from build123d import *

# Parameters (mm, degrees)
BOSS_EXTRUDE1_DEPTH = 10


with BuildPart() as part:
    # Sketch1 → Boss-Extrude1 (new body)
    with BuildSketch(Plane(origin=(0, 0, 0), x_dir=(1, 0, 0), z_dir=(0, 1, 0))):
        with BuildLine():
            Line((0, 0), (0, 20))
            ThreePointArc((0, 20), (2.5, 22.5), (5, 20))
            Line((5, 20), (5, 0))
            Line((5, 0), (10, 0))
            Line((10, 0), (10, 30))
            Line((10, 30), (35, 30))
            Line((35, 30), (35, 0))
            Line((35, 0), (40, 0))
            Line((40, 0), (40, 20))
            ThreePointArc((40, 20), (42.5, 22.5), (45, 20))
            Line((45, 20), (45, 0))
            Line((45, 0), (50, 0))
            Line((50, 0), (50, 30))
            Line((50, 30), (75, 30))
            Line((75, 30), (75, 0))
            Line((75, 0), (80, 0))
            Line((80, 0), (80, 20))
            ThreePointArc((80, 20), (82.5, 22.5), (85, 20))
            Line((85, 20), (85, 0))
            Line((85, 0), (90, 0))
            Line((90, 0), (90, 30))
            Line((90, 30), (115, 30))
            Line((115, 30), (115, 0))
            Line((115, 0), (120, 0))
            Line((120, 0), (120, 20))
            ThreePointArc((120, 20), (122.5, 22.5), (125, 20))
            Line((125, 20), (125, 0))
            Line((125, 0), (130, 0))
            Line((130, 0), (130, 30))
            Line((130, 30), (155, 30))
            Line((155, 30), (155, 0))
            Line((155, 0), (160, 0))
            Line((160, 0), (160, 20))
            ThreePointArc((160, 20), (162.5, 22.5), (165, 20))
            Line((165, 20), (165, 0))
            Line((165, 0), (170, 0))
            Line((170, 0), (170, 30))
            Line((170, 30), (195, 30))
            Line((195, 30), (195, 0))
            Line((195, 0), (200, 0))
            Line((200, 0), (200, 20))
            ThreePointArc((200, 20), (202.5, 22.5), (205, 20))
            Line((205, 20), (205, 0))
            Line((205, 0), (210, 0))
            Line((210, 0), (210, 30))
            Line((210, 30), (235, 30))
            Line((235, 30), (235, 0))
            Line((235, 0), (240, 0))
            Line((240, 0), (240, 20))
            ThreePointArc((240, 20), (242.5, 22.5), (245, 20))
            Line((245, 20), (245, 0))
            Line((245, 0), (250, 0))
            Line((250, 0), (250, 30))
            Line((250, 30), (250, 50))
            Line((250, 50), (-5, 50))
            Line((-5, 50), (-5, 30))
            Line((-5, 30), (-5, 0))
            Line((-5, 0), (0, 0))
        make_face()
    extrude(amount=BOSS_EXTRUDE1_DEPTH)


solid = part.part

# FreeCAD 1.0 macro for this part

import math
import FreeCAD as App
import Part
import Sketcher
from FreeCAD import Vector
Q = App.Units.Quantity

doc = App.newDocument("Part")
body = doc.addObject("PartDesign::Body", "Body")

sketch1 = body.newObject("Sketcher::SketchObject", "Sketch")
sketch1.AttachmentSupport = (doc.getObject("XZ_Plane"), [""])
sketch1.MapMode = "FlatFace"
sketch1.addGeometry(Part.LineSegment(Vector(0, 0, 0), Vector(0, -20, 0)), False)
sketch1.addGeometry(Part.ArcOfCircle(Part.Circle(Vector(2.5, -20, 0), Vector(0, 0, 1), 2.5), math.radians(180), math.radians(360)), False)
sketch1.addGeometry(Part.LineSegment(Vector(5, -20, 0), Vector(5, 0, 0)), False)
sketch1.addGeometry(Part.LineSegment(Vector(5, 0, 0), Vector(10, 0, 0)), False)
sketch1.addGeometry(Part.LineSegment(Vector(10, 0, 0), Vector(10, -30, 0)), False)
sketch1.addGeometry(Part.LineSegment(Vector(10, -30, 0), Vector(35, -30, 0)), False)
sketch1.addGeometry(Part.LineSegment(Vector(35, -30, 0), Vector(35, 0, 0)), False)
sketch1.addGeometry(Part.LineSegment(Vector(35, 0, 0), Vector(40, 0, 0)), False)
sketch1.addGeometry(Part.LineSegment(Vector(40, 0, 0), Vector(40, -20, 0)), False)
sketch1.addGeometry(Part.ArcOfCircle(Part.Circle(Vector(42.5, -20, 0), Vector(0, 0, 1), 2.5), math.radians(180), math.radians(360)), False)
sketch1.addGeometry(Part.LineSegment(Vector(45, -20, 0), Vector(45, 0, 0)), False)
sketch1.addGeometry(Part.LineSegment(Vector(45, 0, 0), Vector(50, 0, 0)), False)
sketch1.addGeometry(Part.LineSegment(Vector(50, 0, 0), Vector(50, -30, 0)), False)
sketch1.addGeometry(Part.LineSegment(Vector(50, -30, 0), Vector(75, -30, 0)), False)
sketch1.addGeometry(Part.LineSegment(Vector(75, -30, 0), Vector(75, 0, 0)), False)
sketch1.addGeometry(Part.LineSegment(Vector(75, 0, 0), Vector(80, 0, 0)), False)
sketch1.addGeometry(Part.LineSegment(Vector(80, 0, 0), Vector(80, -20, 0)), False)
sketch1.addGeometry(Part.ArcOfCircle(Part.Circle(Vector(82.5, -20, 0), Vector(0, 0, 1), 2.5), math.radians(180), math.radians(360)), False)
sketch1.addGeometry(Part.LineSegment(Vector(85, -20, 0), Vector(85, 0, 0)), False)
sketch1.addGeometry(Part.LineSegment(Vector(85, 0, 0), Vector(90, 0, 0)), False)
sketch1.addGeometry(Part.LineSegment(Vector(90, 0, 0), Vector(90, -30, 0)), False)
sketch1.addGeometry(Part.LineSegment(Vector(90, -30, 0), Vector(115, -30, 0)), False)
sketch1.addGeometry(Part.LineSegment(Vector(115, -30, 0), Vector(115, 0, 0)), False)
sketch1.addGeometry(Part.LineSegment(Vector(115, 0, 0), Vector(120, 0, 0)), False)
sketch1.addGeometry(Part.LineSegment(Vector(120, 0, 0), Vector(120, -20, 0)), False)
sketch1.addGeometry(Part.ArcOfCircle(Part.Circle(Vector(122.5, -20, 0), Vector(0, 0, 1), 2.5), math.radians(180), math.radians(360)), False)
sketch1.addGeometry(Part.LineSegment(Vector(125, -20, 0), Vector(125, 0, 0)), False)
sketch1.addGeometry(Part.LineSegment(Vector(125, 0, 0), Vector(130, 0, 0)), False)
sketch1.addGeometry(Part.LineSegment(Vector(130, 0, 0), Vector(130, -30, 0)), False)
sketch1.addGeometry(Part.LineSegment(Vector(130, -30, 0), Vector(155, -30, 0)), False)
sketch1.addGeometry(Part.LineSegment(Vector(155, -30, 0), Vector(155, 0, 0)), False)
sketch1.addGeometry(Part.LineSegment(Vector(155, 0, 0), Vector(160, 0, 0)), False)
sketch1.addGeometry(Part.LineSegment(Vector(160, 0, 0), Vector(160, -20, 0)), False)
sketch1.addGeometry(Part.ArcOfCircle(Part.Circle(Vector(162.5, -20, 0), Vector(0, 0, 1), 2.5), math.radians(180), math.radians(360)), False)
sketch1.addGeometry(Part.LineSegment(Vector(165, -20, 0), Vector(165, 0, 0)), False)
sketch1.addGeometry(Part.LineSegment(Vector(165, 0, 0), Vector(170, 0, 0)), False)
sketch1.addGeometry(Part.LineSegment(Vector(170, 0, 0), Vector(170, -30, 0)), False)
sketch1.addGeometry(Part.LineSegment(Vector(170, -30, 0), Vector(195, -30, 0)), False)
sketch1.addGeometry(Part.LineSegment(Vector(195, -30, 0), Vector(195, 0, 0)), False)
sketch1.addGeometry(Part.LineSegment(Vector(195, 0, 0), Vector(200, 0, 0)), False)
sketch1.addGeometry(Part.LineSegment(Vector(200, 0, 0), Vector(200, -20, 0)), False)
sketch1.addGeometry(Part.ArcOfCircle(Part.Circle(Vector(202.5, -20, 0), Vector(0, 0, 1), 2.5), math.radians(180), math.radians(360)), False)
sketch1.addGeometry(Part.LineSegment(Vector(205, -20, 0), Vector(205, 0, 0)), False)
sketch1.addGeometry(Part.LineSegment(Vector(205, 0, 0), Vector(210, 0, 0)), False)
sketch1.addGeometry(Part.LineSegment(Vector(210, 0, 0), Vector(210, -30, 0)), False)
sketch1.addGeometry(Part.LineSegment(Vector(210, -30, 0), Vector(235, -30, 0)), False)
sketch1.addGeometry(Part.LineSegment(Vector(235, -30, 0), Vector(235, 0, 0)), False)
sketch1.addGeometry(Part.LineSegment(Vector(235, 0, 0), Vector(240, 0, 0)), False)
sketch1.addGeometry(Part.LineSegment(Vector(240, 0, 0), Vector(240, -20, 0)), False)
sketch1.addGeometry(Part.ArcOfCircle(Part.Circle(Vector(242.5, -20, 0), Vector(0, 0, 1), 2.5), math.radians(180), math.radians(360)), False)
sketch1.addGeometry(Part.LineSegment(Vector(245, -20, 0), Vector(245, 0, 0)), False)
sketch1.addGeometry(Part.LineSegment(Vector(245, 0, 0), Vector(250, 0, 0)), False)
sketch1.addGeometry(Part.LineSegment(Vector(250, 0, 0), Vector(250, -50, 0)), False)
sketch1.addGeometry(Part.LineSegment(Vector(250, -50, 0), Vector(-5, -50, 0)), False)
sketch1.addGeometry(Part.LineSegment(Vector(-5, -50, 0), Vector(-5, 0, 0)), False)
sketch1.addGeometry(Part.LineSegment(Vector(-5, 0, 0), Vector(0, 0, 0)), False)
sketch1.addConstraint(Sketcher.Constraint("Tangent", 0, 2, 1, 1))
sketch1.addConstraint(Sketcher.Constraint("Tangent", 1, 2, 2, 1))
sketch1.addConstraint(Sketcher.Constraint("Coincident", 2, 2, 3, 1))
sketch1.addConstraint(Sketcher.Constraint("Coincident", 3, 2, 4, 1))
sketch1.addConstraint(Sketcher.Constraint("Coincident", 4, 2, 5, 1))
sketch1.addConstraint(Sketcher.Constraint("Coincident", 5, 2, 6, 1))
sketch1.addConstraint(Sketcher.Constraint("Coincident", 6, 2, 7, 1))
sketch1.addConstraint(Sketcher.Constraint("Coincident", 7, 2, 8, 1))
sketch1.addConstraint(Sketcher.Constraint("Tangent", 8, 2, 9, 1))
sketch1.addConstraint(Sketcher.Constraint("Tangent", 9, 2, 10, 1))
sketch1.addConstraint(Sketcher.Constraint("Coincident", 10, 2, 11, 1))
sketch1.addConstraint(Sketcher.Constraint("Coincident", 11, 2, 12, 1))
sketch1.addConstraint(Sketcher.Constraint("Coincident", 12, 2, 13, 1))
sketch1.addConstraint(Sketcher.Constraint("Coincident", 13, 2, 14, 1))
sketch1.addConstraint(Sketcher.Constraint("Coincident", 14, 2, 15, 1))
sketch1.addConstraint(Sketcher.Constraint("Coincident", 15, 2, 16, 1))
sketch1.addConstraint(Sketcher.Constraint("Tangent", 16, 2, 17, 1))
sketch1.addConstraint(Sketcher.Constraint("Tangent", 17, 2, 18, 1))
sketch1.addConstraint(Sketcher.Constraint("Coincident", 18, 2, 19, 1))
sketch1.addConstraint(Sketcher.Constraint("Coincident", 19, 2, 20, 1))
sketch1.addConstraint(Sketcher.Constraint("Coincident", 20, 2, 21, 1))
sketch1.addConstraint(Sketcher.Constraint("Coincident", 21, 2, 22, 1))
sketch1.addConstraint(Sketcher.Constraint("Coincident", 22, 2, 23, 1))
sketch1.addConstraint(Sketcher.Constraint("Coincident", 23, 2, 24, 1))
sketch1.addConstraint(Sketcher.Constraint("Tangent", 24, 2, 25, 1))
sketch1.addConstraint(Sketcher.Constraint("Tangent", 25, 2, 26, 1))
sketch1.addConstraint(Sketcher.Constraint("Coincident", 26, 2, 27, 1))
sketch1.addConstraint(Sketcher.Constraint("Coincident", 27, 2, 28, 1))
sketch1.addConstraint(Sketcher.Constraint("Coincident", 28, 2, 29, 1))
sketch1.addConstraint(Sketcher.Constraint("Coincident", 29, 2, 30, 1))
sketch1.addConstraint(Sketcher.Constraint("Coincident", 30, 2, 31, 1))
sketch1.addConstraint(Sketcher.Constraint("Coincident", 31, 2, 32, 1))
sketch1.addConstraint(Sketcher.Constraint("Tangent", 32, 2, 33, 1))
sketch1.addConstraint(Sketcher.Constraint("Tangent", 33, 2, 34, 1))
sketch1.addConstraint(Sketcher.Constraint("Coincident", 34, 2, 35, 1))
sketch1.addConstraint(Sketcher.Constraint("Coincident", 35, 2, 36, 1))
sketch1.addConstraint(Sketcher.Constraint("Coincident", 36, 2, 37, 1))
sketch1.addConstraint(Sketcher.Constraint("Coincident", 37, 2, 38, 1))
sketch1.addConstraint(Sketcher.Constraint("Coincident", 38, 2, 39, 1))
sketch1.addConstraint(Sketcher.Constraint("Coincident", 39, 2, 40, 1))
sketch1.addConstraint(Sketcher.Constraint("Tangent", 40, 2, 41, 1))
sketch1.addConstraint(Sketcher.Constraint("Tangent", 41, 2, 42, 1))
sketch1.addConstraint(Sketcher.Constraint("Coincident", 42, 2, 43, 1))
sketch1.addConstraint(Sketcher.Constraint("Coincident", 43, 2, 44, 1))
sketch1.addConstraint(Sketcher.Constraint("Coincident", 44, 2, 45, 1))
sketch1.addConstraint(Sketcher.Constraint("Coincident", 45, 2, 46, 1))
sketch1.addConstraint(Sketcher.Constraint("Coincident", 46, 2, 47, 1))
sketch1.addConstraint(Sketcher.Constraint("Coincident", 47, 2, 48, 1))
sketch1.addConstraint(Sketcher.Constraint("Tangent", 48, 2, 49, 1))
sketch1.addConstraint(Sketcher.Constraint("Tangent", 49, 2, 50, 1))
sketch1.addConstraint(Sketcher.Constraint("Coincident", 50, 2, 51, 1))
sketch1.addConstraint(Sketcher.Constraint("Coincident", 51, 2, 52, 1))
sketch1.addConstraint(Sketcher.Constraint("Coincident", 52, 2, 53, 1))
sketch1.addConstraint(Sketcher.Constraint("Coincident", 53, 2, 54, 1))
sketch1.addConstraint(Sketcher.Constraint("Coincident", 54, 2, 55, 1))
sketch1.addConstraint(Sketcher.Constraint("Coincident", 55, 2, 0, 1))
sketch1.addConstraint(Sketcher.Constraint("Vertical", 0))
sketch1.addConstraint(Sketcher.Constraint("Vertical", 2))
sketch1.addConstraint(Sketcher.Constraint("Horizontal", 3))
sketch1.addConstraint(Sketcher.Constraint("Vertical", 4))
sketch1.addConstraint(Sketcher.Constraint("Horizontal", 5))
sketch1.addConstraint(Sketcher.Constraint("Vertical", 6))
sketch1.addConstraint(Sketcher.Constraint("Horizontal", 7))
sketch1.addConstraint(Sketcher.Constraint("Vertical", 8))
sketch1.addConstraint(Sketcher.Constraint("Vertical", 10))
sketch1.addConstraint(Sketcher.Constraint("Horizontal", 11))
sketch1.addConstraint(Sketcher.Constraint("Vertical", 12))
sketch1.addConstraint(Sketcher.Constraint("Horizontal", 13))
sketch1.addConstraint(Sketcher.Constraint("Vertical", 14))
sketch1.addConstraint(Sketcher.Constraint("Horizontal", 15))
sketch1.addConstraint(Sketcher.Constraint("Vertical", 16))
sketch1.addConstraint(Sketcher.Constraint("Vertical", 18))
sketch1.addConstraint(Sketcher.Constraint("Horizontal", 19))
sketch1.addConstraint(Sketcher.Constraint("Vertical", 20))
sketch1.addConstraint(Sketcher.Constraint("Horizontal", 21))
sketch1.addConstraint(Sketcher.Constraint("Vertical", 22))
sketch1.addConstraint(Sketcher.Constraint("Horizontal", 23))
sketch1.addConstraint(Sketcher.Constraint("Vertical", 24))
sketch1.addConstraint(Sketcher.Constraint("Vertical", 26))
sketch1.addConstraint(Sketcher.Constraint("Horizontal", 27))
sketch1.addConstraint(Sketcher.Constraint("Vertical", 28))
sketch1.addConstraint(Sketcher.Constraint("Horizontal", 29))
sketch1.addConstraint(Sketcher.Constraint("Vertical", 30))
sketch1.addConstraint(Sketcher.Constraint("Horizontal", 31))
sketch1.addConstraint(Sketcher.Constraint("Vertical", 32))
sketch1.addConstraint(Sketcher.Constraint("Vertical", 34))
sketch1.addConstraint(Sketcher.Constraint("Horizontal", 35))
sketch1.addConstraint(Sketcher.Constraint("Vertical", 36))
sketch1.addConstraint(Sketcher.Constraint("Horizontal", 37))
sketch1.addConstraint(Sketcher.Constraint("Vertical", 38))
sketch1.addConstraint(Sketcher.Constraint("Horizontal", 39))
sketch1.addConstraint(Sketcher.Constraint("Vertical", 40))
sketch1.addConstraint(Sketcher.Constraint("Vertical", 42))
sketch1.addConstraint(Sketcher.Constraint("Horizontal", 43))
sketch1.addConstraint(Sketcher.Constraint("Vertical", 44))
sketch1.addConstraint(Sketcher.Constraint("Horizontal", 45))
sketch1.addConstraint(Sketcher.Constraint("Vertical", 46))
sketch1.addConstraint(Sketcher.Constraint("Horizontal", 47))
sketch1.addConstraint(Sketcher.Constraint("Vertical", 48))
sketch1.addConstraint(Sketcher.Constraint("Vertical", 50))
sketch1.addConstraint(Sketcher.Constraint("Horizontal", 51))
sketch1.addConstraint(Sketcher.Constraint("Vertical", 52))
sketch1.addConstraint(Sketcher.Constraint("Horizontal", 53))
sketch1.addConstraint(Sketcher.Constraint("Vertical", 54))
sketch1.addConstraint(Sketcher.Constraint("Horizontal", 55))
sketch1.addConstraint(Sketcher.Constraint("Coincident", 55, 2, -1, 1))
sketch1.addConstraint(Sketcher.Constraint("Equal", 1, 9))
sketch1.addConstraint(Sketcher.Constraint("Equal", 9, 17))
sketch1.addConstraint(Sketcher.Constraint("Equal", 17, 25))
sketch1.addConstraint(Sketcher.Constraint("Equal", 25, 33))
sketch1.addConstraint(Sketcher.Constraint("Equal", 33, 41))
sketch1.addConstraint(Sketcher.Constraint("Equal", 41, 49))
sketch1.addConstraint(Sketcher.Constraint("Symmetric", 2, 2, 54, 2, -1, 1))
sketch1.addConstraint(Sketcher.Constraint("PointOnObject", 6, 2, -1))
sketch1.addConstraint(Sketcher.Constraint("PointOnObject", 10, 2, -1))
sketch1.addConstraint(Sketcher.Constraint("PointOnObject", 14, 2, -1))
sketch1.addConstraint(Sketcher.Constraint("PointOnObject", 18, 2, -1))
sketch1.addConstraint(Sketcher.Constraint("PointOnObject", 22, 2, -1))
sketch1.addConstraint(Sketcher.Constraint("PointOnObject", 26, 2, -1))
sketch1.addConstraint(Sketcher.Constraint("PointOnObject", 30, 2, -1))
sketch1.addConstraint(Sketcher.Constraint("PointOnObject", 34, 2, -1))
sketch1.addConstraint(Sketcher.Constraint("PointOnObject", 38, 2, -1))
sketch1.addConstraint(Sketcher.Constraint("PointOnObject", 42, 2, -1))
sketch1.addConstraint(Sketcher.Constraint("PointOnObject", 46, 2, -1))
sketch1.addConstraint(Sketcher.Constraint("PointOnObject", 50, 2, -1))
sketch1.addConstraint(Sketcher.Constraint("Horizontal", 1, 3, 9, 3))
sketch1.addConstraint(Sketcher.Constraint("Horizontal", 9, 3, 17, 3))
sketch1.addConstraint(Sketcher.Constraint("Horizontal", 17, 3, 25, 3))
sketch1.addConstraint(Sketcher.Constraint("Horizontal", 25, 3, 33, 3))
sketch1.addConstraint(Sketcher.Constraint("Horizontal", 33, 3, 41, 3))
sketch1.addConstraint(Sketcher.Constraint("Horizontal", 41, 3, 49, 3))
sketch1.addConstraint(Sketcher.Constraint("Horizontal", 5, 2, 12, 2))
sketch1.addConstraint(Sketcher.Constraint("Horizontal", 13, 2, 20, 2))
sketch1.addConstraint(Sketcher.Constraint("Horizontal", 21, 2, 28, 2))
sketch1.addConstraint(Sketcher.Constraint("Horizontal", 29, 2, 36, 2))
sketch1.addConstraint(Sketcher.Constraint("Horizontal", 37, 2, 44, 2))
sketch1.addConstraint(Sketcher.Constraint("Equal", 3, 7))
sketch1.addConstraint(Sketcher.Constraint("Equal", 7, 11))
sketch1.addConstraint(Sketcher.Constraint("Equal", 5, 13))
sketch1.addConstraint(Sketcher.Constraint("Equal", 11, 15))
sketch1.addConstraint(Sketcher.Constraint("Equal", 15, 19))
sketch1.addConstraint(Sketcher.Constraint("Equal", 13, 21))
sketch1.addConstraint(Sketcher.Constraint("Equal", 19, 23))
sketch1.addConstraint(Sketcher.Constraint("Equal", 23, 27))
sketch1.addConstraint(Sketcher.Constraint("Equal", 21, 29))
sketch1.addConstraint(Sketcher.Constraint("Equal", 27, 31))
sketch1.addConstraint(Sketcher.Constraint("Equal", 31, 35))
sketch1.addConstraint(Sketcher.Constraint("Equal", 29, 37))
sketch1.addConstraint(Sketcher.Constraint("Equal", 35, 39))
sketch1.addConstraint(Sketcher.Constraint("Equal", 39, 43))
sketch1.addConstraint(Sketcher.Constraint("Equal", 37, 45))
sketch1.addConstraint(Sketcher.Constraint("Equal", 43, 47))
sketch1.addConstraint(Sketcher.Constraint("Equal", 47, 51))
sketch1.addConstraint(Sketcher.Constraint("Equal", 51, 55))
sketch1.addConstraint(Sketcher.Constraint("Radius", 1, Q("2.5 mm")))
sketch1.addConstraint(Sketcher.Constraint("DistanceX", 5, 1, 5, 2, Q("25 mm")))
sketch1.addConstraint(Sketcher.Constraint("DistanceY", 0, 2, 0, 1, Q("20 mm")))
sketch1.addConstraint(Sketcher.Constraint("DistanceY", 4, 2, 4, 1, Q("30 mm")))
sketch1.addConstraint(Sketcher.Constraint("DistanceY", 52, 2, 52, 1, Q("50 mm")))
pad1 = body.newObject("PartDesign::Pad", "Pad")
pad1.Profile = sketch1
pad1.Length = 10
pad1.Reversed = True

doc.recompute()
